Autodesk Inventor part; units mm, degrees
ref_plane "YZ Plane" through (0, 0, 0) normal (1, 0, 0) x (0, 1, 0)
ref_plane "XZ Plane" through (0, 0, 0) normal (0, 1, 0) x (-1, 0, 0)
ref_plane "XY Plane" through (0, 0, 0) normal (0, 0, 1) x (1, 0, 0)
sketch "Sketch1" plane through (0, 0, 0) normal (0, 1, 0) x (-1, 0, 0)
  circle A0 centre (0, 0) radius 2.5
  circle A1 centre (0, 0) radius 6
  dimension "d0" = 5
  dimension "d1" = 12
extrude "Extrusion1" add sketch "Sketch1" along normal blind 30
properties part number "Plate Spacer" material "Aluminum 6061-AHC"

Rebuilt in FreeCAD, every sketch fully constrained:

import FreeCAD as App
import Part
import Sketcher

V = App.Vector

doc = App.newDocument("Part")
body = doc.addObject("PartDesign::Body", "Body")

# Sketch on XZ plane
sketch1 = body.newObject("Sketcher::SketchObject", "Sketch")
sketch1.AttachmentSupport = (doc.getObject("XZ_Plane"), [""])
sketch1.MapMode = "FlatFace"
sketch1.addGeometry(Part.Circle(V(0, 0, 0), V(0, 0, 1), 6), False)
sketch1.addGeometry(Part.Circle(V(0, 0, 0), V(0, 0, 1), 2.5), False)
sketch1.addConstraint(Sketcher.Constraint("Coincident", 0, 3, -1, 1))
sketch1.addConstraint(Sketcher.Constraint("Coincident", 1, 3, -1, 1))
sketch1.addConstraint(Sketcher.Constraint("Diameter", 0, 12.0))
sketch1.addConstraint(Sketcher.Constraint("Diameter", 1, 5.0))
pad1 = body.newObject("PartDesign::Pad", "Pad")
pad1.Profile = sketch1
pad1.Length = 30
pad1.Reversed = True

doc.recompute()
